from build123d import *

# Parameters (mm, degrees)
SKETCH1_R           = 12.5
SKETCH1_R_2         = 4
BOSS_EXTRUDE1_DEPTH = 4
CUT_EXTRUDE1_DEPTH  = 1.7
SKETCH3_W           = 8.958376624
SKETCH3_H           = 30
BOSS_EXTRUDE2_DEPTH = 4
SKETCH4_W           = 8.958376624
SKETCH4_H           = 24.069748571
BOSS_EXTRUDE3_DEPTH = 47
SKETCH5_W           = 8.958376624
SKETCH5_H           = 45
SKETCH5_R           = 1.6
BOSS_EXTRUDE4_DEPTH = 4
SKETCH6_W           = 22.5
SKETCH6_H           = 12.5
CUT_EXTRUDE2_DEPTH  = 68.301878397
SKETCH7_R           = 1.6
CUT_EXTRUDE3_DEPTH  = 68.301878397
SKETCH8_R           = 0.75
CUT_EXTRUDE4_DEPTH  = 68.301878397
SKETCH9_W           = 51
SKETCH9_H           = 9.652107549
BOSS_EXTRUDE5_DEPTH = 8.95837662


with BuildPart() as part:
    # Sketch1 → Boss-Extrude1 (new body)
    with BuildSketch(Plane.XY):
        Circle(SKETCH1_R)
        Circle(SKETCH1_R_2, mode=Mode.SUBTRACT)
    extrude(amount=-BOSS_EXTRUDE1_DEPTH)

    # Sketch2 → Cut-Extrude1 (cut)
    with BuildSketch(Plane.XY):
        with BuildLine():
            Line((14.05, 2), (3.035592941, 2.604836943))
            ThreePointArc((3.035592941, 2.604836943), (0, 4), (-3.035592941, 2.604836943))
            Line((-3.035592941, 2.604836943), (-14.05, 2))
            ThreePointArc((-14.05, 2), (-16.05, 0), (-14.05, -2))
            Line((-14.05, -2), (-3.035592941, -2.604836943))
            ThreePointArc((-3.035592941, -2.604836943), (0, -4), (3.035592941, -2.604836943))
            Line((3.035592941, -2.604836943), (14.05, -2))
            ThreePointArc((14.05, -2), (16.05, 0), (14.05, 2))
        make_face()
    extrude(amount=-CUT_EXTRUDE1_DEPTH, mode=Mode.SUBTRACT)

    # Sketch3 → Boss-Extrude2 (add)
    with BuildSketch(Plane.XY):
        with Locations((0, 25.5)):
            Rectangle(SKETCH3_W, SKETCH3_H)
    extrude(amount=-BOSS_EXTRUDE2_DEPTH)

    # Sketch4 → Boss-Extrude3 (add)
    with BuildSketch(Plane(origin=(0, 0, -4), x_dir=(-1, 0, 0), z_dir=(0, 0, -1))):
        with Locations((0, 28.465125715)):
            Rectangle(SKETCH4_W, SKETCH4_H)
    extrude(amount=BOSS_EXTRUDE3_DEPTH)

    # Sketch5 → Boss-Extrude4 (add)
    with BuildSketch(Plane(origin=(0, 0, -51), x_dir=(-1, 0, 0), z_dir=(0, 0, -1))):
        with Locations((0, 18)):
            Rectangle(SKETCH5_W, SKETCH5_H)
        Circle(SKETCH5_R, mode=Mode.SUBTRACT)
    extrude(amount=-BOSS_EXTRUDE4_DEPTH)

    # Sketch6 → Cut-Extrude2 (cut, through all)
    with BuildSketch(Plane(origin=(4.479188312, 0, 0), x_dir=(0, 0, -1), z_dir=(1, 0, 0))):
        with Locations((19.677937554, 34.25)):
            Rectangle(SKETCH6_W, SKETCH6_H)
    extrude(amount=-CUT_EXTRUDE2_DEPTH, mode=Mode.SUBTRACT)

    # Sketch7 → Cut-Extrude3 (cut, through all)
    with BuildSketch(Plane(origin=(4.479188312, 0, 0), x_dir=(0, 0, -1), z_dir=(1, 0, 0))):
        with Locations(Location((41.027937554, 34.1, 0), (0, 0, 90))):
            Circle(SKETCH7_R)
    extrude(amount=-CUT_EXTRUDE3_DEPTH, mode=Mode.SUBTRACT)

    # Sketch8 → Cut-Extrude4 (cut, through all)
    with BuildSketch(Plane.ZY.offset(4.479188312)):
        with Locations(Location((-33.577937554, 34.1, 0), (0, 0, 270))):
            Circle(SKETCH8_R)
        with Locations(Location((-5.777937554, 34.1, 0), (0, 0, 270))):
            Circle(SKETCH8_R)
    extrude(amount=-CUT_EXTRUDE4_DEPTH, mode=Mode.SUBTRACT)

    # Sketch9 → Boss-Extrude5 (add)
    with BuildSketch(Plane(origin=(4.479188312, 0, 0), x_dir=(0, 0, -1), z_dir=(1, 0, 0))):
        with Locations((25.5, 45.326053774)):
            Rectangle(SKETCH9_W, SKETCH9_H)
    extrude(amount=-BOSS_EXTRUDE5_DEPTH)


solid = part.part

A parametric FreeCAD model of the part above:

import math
import FreeCAD as App
import Part
import Sketcher

doc = App.newDocument("Part")
body = doc.addObject("PartDesign::Body", "Body")

sketch1 = body.newObject("Sketcher::SketchObject", "Sketch")
sketch1.AttachmentSupport = (doc.getObject("XY_Plane"), [""])
sketch1.MapMode = "FlatFace"
sketch1.addGeometry(Part.Circle(App.Vector(0, 0, 0), App.Vector(0, 0, 1), 12.5), False)
sketch1.addGeometry(Part.Circle(App.Vector(0, 0, 0), App.Vector(0, 0, 1), 4), False)
sketch1.addConstraint(Sketcher.Constraint("Coincident", 0, 3, -1, 1))
sketch1.addConstraint(Sketcher.Constraint("Coincident", 1, 3, -1, 1))
sketch1.addConstraint(Sketcher.Constraint("Diameter", 0, 25.0))
sketch1.addConstraint(Sketcher.Constraint("Diameter", 1, 8.0))
pad1 = body.newObject("PartDesign::Pad", "Pad")
pad1.Profile = sketch1
pad1.Length = 4
pad1.Reversed = True

sketch2 = body.newObject("Sketcher::SketchObject", "Sketch001")
sketch2.AttachmentSupport = (doc.getObject("XY_Plane"), [""])
sketch2.MapMode = "FlatFace"
sketch2.addGeometry(Part.LineSegment(App.Vector(14.1, 2, 0), App.Vector(3, 2.6, 0)), False)
sketch2.addGeometry(Part.ArcOfCircle(Part.Circle(App.Vector(0, 0, 0), App.Vector(0, 0, 1), 4), math.radians(41), math.radians(139)), False)
sketch2.addGeometry(Part.LineSegment(App.Vector(-3, 2.6, 0), App.Vector(-14.1, 2, 0)), False)
sketch2.addGeometry(Part.ArcOfCircle(Part.Circle(App.Vector(-14.1, 0, 0), App.Vector(0, 0, 1), 2), math.radians(90), math.radians(270)), False)
sketch2.addGeometry(Part.LineSegment(App.Vector(-14.1, -2, 0), App.Vector(-3, -2.6, 0)), False)
sketch2.addGeometry(Part.ArcOfCircle(Part.Circle(App.Vector(0, 0, 0), App.Vector(0, 0, 1), 4), math.radians(-139), math.radians(-41)), False)
sketch2.addGeometry(Part.LineSegment(App.Vector(3, -2.6, 0), App.Vector(14.1, -2, 0)), False)
sketch2.addGeometry(Part.ArcOfCircle(Part.Circle(App.Vector(14.1, 0, 0), App.Vector(0, 0, 1), 2), math.radians(-90), math.radians(90)), False)
sketch2.addConstraint(Sketcher.Constraint("Coincident", 0, 2, 1, 1))
sketch2.addConstraint(Sketcher.Constraint("Coincident", 1, 2, 2, 1))
sketch2.addConstraint(Sketcher.Constraint("Coincident", 2, 2, 3, 1))
sketch2.addConstraint(Sketcher.Constraint("Coincident", 3, 2, 4, 1))
sketch2.addConstraint(Sketcher.Constraint("Coincident", 4, 2, 5, 1))
sketch2.addConstraint(Sketcher.Constraint("Coincident", 5, 2, 6, 1))
sketch2.addConstraint(Sketcher.Constraint("Coincident", 6, 2, 7, 1))
sketch2.addConstraint(Sketcher.Constraint("Coincident", 7, 2, 0, 1))
sketch2.addConstraint(Sketcher.Constraint("Coincident", 1, 3, -1, 1))
sketch2.addConstraint(Sketcher.Constraint("Coincident", 5, 3, -1, 1))
sketch2.addConstraint(Sketcher.Constraint("Equal", 1, 5))
sketch2.addConstraint(Sketcher.Constraint("Equal", 3, 7))
sketch2.addConstraint(Sketcher.Constraint("Symmetric", 3, 3, 7, 3, -1, 1))
sketch2.addConstraint(Sketcher.Constraint("Symmetric", 3, 2, 6, 2, -2))
sketch2.addConstraint(Sketcher.Constraint("Parallel", 0, 4))
sketch2.addConstraint(Sketcher.Constraint("Parallel", 2, 6))
sketch2.addConstraint(Sketcher.Constraint("Horizontal", 0, 2, 1, 2))
sketch2.addConstraint(Sketcher.Constraint("Horizontal", 4, 2, 5, 2))
sketch2.addConstraint(Sketcher.Constraint("Vertical", 3, 3, 2, 2))
sketch2.addConstraint(Sketcher.Constraint("Vertical", 2, 2, 3, 2))
sketch2.addConstraint(Sketcher.Constraint("Radius", 1, 4.0))
sketch2.addConstraint(Sketcher.Constraint("Radius", 3, 2.0))
sketch2.addConstraint(Sketcher.Constraint("DistanceX", 3, 3, 7, 3, 28.1))
sketch2.addConstraint(Sketcher.Constraint("Distance", 0, 11.031001))
pocket1 = body.newObject("PartDesign::Pocket", "Pocket")
pocket1.Profile = sketch2
pocket1.Length = 1.7

sketch3 = body.newObject("Sketcher::SketchObject", "Sketch002")
sketch3.AttachmentSupport = (doc.getObject("XY_Plane"), [""])
sketch3.MapMode = "FlatFace"
sketch3.addGeometry(Part.LineSegment(App.Vector(-4, 40, 0), App.Vector(-4, 10, 0)), False)
sketch3.addGeometry(Part.LineSegment(App.Vector(-4, 10, 0), App.Vector(4, 10, 0)), False)
sketch3.addGeometry(Part.LineSegment(App.Vector(4, 10, 0), App.Vector(4, 40, 0)), False)
sketch3.addGeometry(Part.LineSegment(App.Vector(4, 40, 0), App.Vector(-4, 40, 0)), False)
sketch3.addConstraint(Sketcher.Constraint("Coincident", 0, 2, 1, 1))
sketch3.addConstraint(Sketcher.Constraint("Coincident", 1, 2, 2, 1))
sketch3.addConstraint(Sketcher.Constraint("Coincident", 2, 2, 3, 1))
sketch3.addConstraint(Sketcher.Constraint("Coincident", 3, 2, 0, 1))
sketch3.addConstraint(Sketcher.Constraint("Vertical", 0))
sketch3.addConstraint(Sketcher.Constraint("Horizontal", 1))
sketch3.addConstraint(Sketcher.Constraint("Vertical", 2))
sketch3.addConstraint(Sketcher.Constraint("Horizontal", 3))
sketch3.addConstraint(Sketcher.Constraint("DistanceY", 0, 2, 0, 1, 30.0))
sketch3.addConstraint(Sketcher.Constraint("DistanceY", -1, 1, 0, 2, 10.5))
sketch3.addConstraint(Sketcher.Constraint("DistanceX", 1, 1, 1, 2, 8.958377))
sketch3.addConstraint(Sketcher.Constraint("DistanceX", 0, 2, -1, 1, 4.479188))
pad2 = body.newObject("PartDesign::Pad", "Pad001")
pad2.Profile = sketch3
pad2.Length = 4
pad2.Reversed = True

sketch4 = body.newObject("Sketcher::SketchObject", "Sketch003")
sketch4.AttachmentSupport = (doc.getObject("XY_Plane"), [""])
sketch4.MapMode = "FlatFace"
sketch4.AttachmentOffset = App.Placement(App.Vector(0, 0, -4), App.Rotation())
sketch4.addGeometry(Part.LineSegment(App.Vector(4, 41, 0), App.Vector(4, 16, 0)), False)
sketch4.addGeometry(Part.LineSegment(App.Vector(4, 16, 0), App.Vector(-4, 16, 0)), False)
sketch4.addGeometry(Part.LineSegment(App.Vector(-4, 16, 0), App.Vector(-4, 41, 0)), False)
sketch4.addGeometry(Part.LineSegment(App.Vector(-4, 41, 0), App.Vector(4, 41, 0)), False)
sketch4.addConstraint(Sketcher.Constraint("Coincident", 0, 2, 1, 1))
sketch4.addConstraint(Sketcher.Constraint("Coincident", 1, 2, 2, 1))
sketch4.addConstraint(Sketcher.Constraint("Coincident", 2, 2, 3, 1))
sketch4.addConstraint(Sketcher.Constraint("Coincident", 3, 2, 0, 1))
sketch4.addConstraint(Sketcher.Constraint("Vertical", 0))
sketch4.addConstraint(Sketcher.Constraint("Horizontal", 1))
sketch4.addConstraint(Sketcher.Constraint("Vertical", 2))
sketch4.addConstraint(Sketcher.Constraint("Horizontal", 3))
sketch4.addConstraint(Sketcher.Constraint("DistanceY", -1, 1, 2, 2, 40.5))
sketch4.addConstraint(Sketcher.Constraint("DistanceY", 0, 2, 0, 1, 24.069749))
sketch4.addConstraint(Sketcher.Constraint("DistanceX", 1, 2, 1, 1, 8.958377))
sketch4.addConstraint(Sketcher.Constraint("DistanceX", -1, 1, 0, 2, 4.479188))
pad3 = body.newObject("PartDesign::Pad", "Pad002")
pad3.Profile = sketch4
pad3.Length = 47
pad3.Reversed = True

sketch5 = body.newObject("Sketcher::SketchObject", "Sketch004")
sketch5.AttachmentSupport = (doc.getObject("XY_Plane"), [""])
sketch5.MapMode = "FlatFace"
sketch5.AttachmentOffset = App.Placement(App.Vector(0, 0, -51), App.Rotation())
sketch5.addGeometry(Part.LineSegment(App.Vector(4.5, 40.5, 0), App.Vector(4.5, -4.5, 0)), False)
sketch5.addGeometry(Part.LineSegment(App.Vector(4.5, -4.5, 0), App.Vector(-4.5, -4.5, 0)), False)
sketch5.addGeometry(Part.LineSegment(App.Vector(-4.5, -4.5, 0), App.Vector(-4.5, 40.5, 0)), False)
sketch5.addGeometry(Part.LineSegment(App.Vector(-4.5, 40.5, 0), App.Vector(4.5, 40.5, 0)), False)
sketch5.addGeometry(Part.Circle(App.Vector(0, 0, 0), App.Vector(0, 0, 1), 1.6), False)
sketch5.addConstraint(Sketcher.Constraint("Coincident", 0, 2, 1, 1))
sketch5.addConstraint(Sketcher.Constraint("Coincident", 1, 2, 2, 1))
sketch5.addConstraint(Sketcher.Constraint("Coincident", 2, 2, 3, 1))
sketch5.addConstraint(Sketcher.Constraint("Coincident", 3, 2, 0, 1))
sketch5.addConstraint(Sketcher.Constraint("Vertical", 0))
sketch5.addConstraint(Sketcher.Constraint("Horizontal", 1))
sketch5.addConstraint(Sketcher.Constraint("Vertical", 2))
sketch5.addConstraint(Sketcher.Constraint("Horizontal", 3))
sketch5.addConstraint(Sketcher.Constraint("Coincident", 4, 3, -1, 1))
sketch5.addConstraint(Sketcher.Constraint("Diameter", 4, 3.2))
sketch5.addConstraint(Sketcher.Constraint("DistanceY", 0, 2, 0, 1, 45.0))
sketch5.addConstraint(Sketcher.Constraint("DistanceY", 0, 2, -1, 1, 4.5))
sketch5.addConstraint(Sketcher.Constraint("DistanceX", 1, 2, 1, 1, 8.958377))
sketch5.addConstraint(Sketcher.Constraint("DistanceX", -1, 1, 0, 2, 4.479188))
pad4 = body.newObject("PartDesign::Pad", "Pad003")
pad4.Profile = sketch5
pad4.Length = 4

sketch6 = body.newObject("Sketcher::SketchObject", "Sketch005")
sketch6.AttachmentSupport = (doc.getObject("YZ_Plane"), [""])
sketch6.MapMode = "FlatFace"
sketch6.AttachmentOffset = App.Placement(App.Vector(0, 0, 4.479188), App.Rotation())
sketch6.addGeometry(Part.LineSegment(App.Vector(40, -8, 0), App.Vector(28, -8, 0)), False)
sketch6.addGeometry(Part.LineSegment(App.Vector(28, -8, 0), App.Vector(28, -31, 0)), False)
sketch6.addGeometry(Part.LineSegment(App.Vector(28, -31, 0), App.Vector(40, -31, 0)), False)
sketch6.addGeometry(Part.LineSegment(App.Vector(40, -31, 0), App.Vector(40, -8, 0)), False)
sketch6.addConstraint(Sketcher.Constraint("Coincident", 0, 2, 1, 1))
sketch6.addConstraint(Sketcher.Constraint("Coincident", 1, 2, 2, 1))
sketch6.addConstraint(Sketcher.Constraint("Coincident", 2, 2, 3, 1))
sketch6.addConstraint(Sketcher.Constraint("Coincident", 3, 2, 0, 1))
sketch6.addConstraint(Sketcher.Constraint("Horizontal", 0))
sketch6.addConstraint(Sketcher.Constraint("Vertical", 1))
sketch6.addConstraint(Sketcher.Constraint("Horizontal", 2))
sketch6.addConstraint(Sketcher.Constraint("Vertical", 3))
sketch6.addConstraint(Sketcher.Constraint("DistanceX", 0, 2, 0, 1, 12.5))
sketch6.addConstraint(Sketcher.Constraint("DistanceY", 1, 2, 1, 1, 22.5))
sketch6.addConstraint(Sketcher.Constraint("DistanceX", -1, 1, 0, 2, 28.0))
sketch6.addConstraint(Sketcher.Constraint("DistanceY", 0, 2, -1, 1, 8.427938))
pocket2 = body.newObject("PartDesign::Pocket", "Pocket001")
pocket2.Profile = sketch6
pocket2.Type = "ThroughAll"

sketch7 = body.newObject("Sketcher::SketchObject", "Sketch006")
sketch7.AttachmentSupport = (doc.getObject("YZ_Plane"), [""])
sketch7.MapMode = "FlatFace"
sketch7.AttachmentOffset = App.Placement(App.Vector(0, 0, 4.479188), App.Rotation())
sketch7.addGeometry(Part.Circle(App.Vector(34.1, -41, 0), App.Vector(0, 0, 1), 1.6), False)
sketch7.addConstraint(Sketcher.Constraint("Diameter", 0, 3.2))
sketch7.addConstraint(Sketcher.Constraint("DistanceX", -1, 1, 0, 3, 34.1))
sketch7.addConstraint(Sketcher.Constraint("DistanceY", 0, 3, -1, 1, 41.027938))
pocket3 = body.newObject("PartDesign::Pocket", "Pocket002")
pocket3.Profile = sketch7
pocket3.Type = "ThroughAll"

sketch8 = body.newObject("Sketcher::SketchObject", "Sketch007")
sketch8.AttachmentSupport = (doc.getObject("YZ_Plane"), [""])
sketch8.MapMode = "FlatFace"
sketch8.AttachmentOffset = App.Placement(App.Vector(0, 0, -4.479188), App.Rotation())
sketch8.addGeometry(Part.Circle(App.Vector(34.1, -33.6, 0), App.Vector(0, 0, 1), 0.8), False)
sketch8.addGeometry(Part.Circle(App.Vector(34.1, -5.8, 0), App.Vector(0, 0, 1), 0.8), False)
sketch8.addConstraint(Sketcher.Constraint("Equal", 0, 1))
sketch8.addConstraint(Sketcher.Constraint("Vertical", 0, 3, 1, 3))
sketch8.addConstraint(Sketcher.Constraint("Diameter", 0, 1.5))
sketch8.addConstraint(Sketcher.Constraint("DistanceX", -1, 1, 0, 3, 34.1))
sketch8.addConstraint(Sketcher.Constraint("DistanceY", 0, 3, 1, 3, 27.8))
sketch8.addConstraint(Sketcher.Constraint("DistanceY", 0, 3, -1, 1, 33.577938))
pocket4 = body.newObject("PartDesign::Pocket", "Pocket003")
pocket4.Profile = sketch8
pocket4.Type = "ThroughAll"
pocket4.Reversed = True

sketch9 = body.newObject("Sketcher::SketchObject", "Sketch008")
sketch9.AttachmentSupport = (doc.getObject("YZ_Plane"), [""])
sketch9.MapMode = "FlatFace"
sketch9.AttachmentOffset = App.Placement(App.Vector(0, 0, 4.479188), App.Rotation())
sketch9.addGeometry(Part.LineSegment(App.Vector(50, 0, 0), App.Vector(40, 0, 0)), False)
sketch9.addGeometry(Part.LineSegment(App.Vector(40, 0, 0), App.Vector(40, -51, 0)), False)
sketch9.addGeometry(Part.LineSegment(App.Vector(40, -51, 0), App.Vector(50, -51, 0)), False)
sketch9.addGeometry(Part.LineSegment(App.Vector(50, -51, 0), App.Vector(50, 0, 0)), False)
sketch9.addConstraint(Sketcher.Constraint("Coincident", 0, 2, 1, 1))
sketch9.addConstraint(Sketcher.Constraint("Coincident", 1, 2, 2, 1))
sketch9.addConstraint(Sketcher.Constraint("Coincident", 2, 2, 3, 1))
sketch9.addConstraint(Sketcher.Constraint("Coincident", 3, 2, 0, 1))
sketch9.addConstraint(Sketcher.Constraint("Horizontal", 0))
sketch9.addConstraint(Sketcher.Constraint("Vertical", 1))
sketch9.addConstraint(Sketcher.Constraint("Horizontal", 2))
sketch9.addConstraint(Sketcher.Constraint("Vertical", 3))
sketch9.addConstraint(Sketcher.Constraint("PointOnObject", 0, 2, -1))
sketch9.addConstraint(Sketcher.Constraint("DistanceY", 1, 2, 1, 1, 51.0))
sketch9.addConstraint(Sketcher.Constraint("DistanceX", -1, 1, 0, 2, 40.5))
sketch9.addConstraint(Sketcher.Constraint("DistanceX", 0, 2, 0, 1, 9.652108))
pad5 = body.newObject("PartDesign::Pad", "Pad004")
pad5.Profile = sketch9
pad5.Length = 8.958377
pad5.Reversed = True

doc.recompute()
